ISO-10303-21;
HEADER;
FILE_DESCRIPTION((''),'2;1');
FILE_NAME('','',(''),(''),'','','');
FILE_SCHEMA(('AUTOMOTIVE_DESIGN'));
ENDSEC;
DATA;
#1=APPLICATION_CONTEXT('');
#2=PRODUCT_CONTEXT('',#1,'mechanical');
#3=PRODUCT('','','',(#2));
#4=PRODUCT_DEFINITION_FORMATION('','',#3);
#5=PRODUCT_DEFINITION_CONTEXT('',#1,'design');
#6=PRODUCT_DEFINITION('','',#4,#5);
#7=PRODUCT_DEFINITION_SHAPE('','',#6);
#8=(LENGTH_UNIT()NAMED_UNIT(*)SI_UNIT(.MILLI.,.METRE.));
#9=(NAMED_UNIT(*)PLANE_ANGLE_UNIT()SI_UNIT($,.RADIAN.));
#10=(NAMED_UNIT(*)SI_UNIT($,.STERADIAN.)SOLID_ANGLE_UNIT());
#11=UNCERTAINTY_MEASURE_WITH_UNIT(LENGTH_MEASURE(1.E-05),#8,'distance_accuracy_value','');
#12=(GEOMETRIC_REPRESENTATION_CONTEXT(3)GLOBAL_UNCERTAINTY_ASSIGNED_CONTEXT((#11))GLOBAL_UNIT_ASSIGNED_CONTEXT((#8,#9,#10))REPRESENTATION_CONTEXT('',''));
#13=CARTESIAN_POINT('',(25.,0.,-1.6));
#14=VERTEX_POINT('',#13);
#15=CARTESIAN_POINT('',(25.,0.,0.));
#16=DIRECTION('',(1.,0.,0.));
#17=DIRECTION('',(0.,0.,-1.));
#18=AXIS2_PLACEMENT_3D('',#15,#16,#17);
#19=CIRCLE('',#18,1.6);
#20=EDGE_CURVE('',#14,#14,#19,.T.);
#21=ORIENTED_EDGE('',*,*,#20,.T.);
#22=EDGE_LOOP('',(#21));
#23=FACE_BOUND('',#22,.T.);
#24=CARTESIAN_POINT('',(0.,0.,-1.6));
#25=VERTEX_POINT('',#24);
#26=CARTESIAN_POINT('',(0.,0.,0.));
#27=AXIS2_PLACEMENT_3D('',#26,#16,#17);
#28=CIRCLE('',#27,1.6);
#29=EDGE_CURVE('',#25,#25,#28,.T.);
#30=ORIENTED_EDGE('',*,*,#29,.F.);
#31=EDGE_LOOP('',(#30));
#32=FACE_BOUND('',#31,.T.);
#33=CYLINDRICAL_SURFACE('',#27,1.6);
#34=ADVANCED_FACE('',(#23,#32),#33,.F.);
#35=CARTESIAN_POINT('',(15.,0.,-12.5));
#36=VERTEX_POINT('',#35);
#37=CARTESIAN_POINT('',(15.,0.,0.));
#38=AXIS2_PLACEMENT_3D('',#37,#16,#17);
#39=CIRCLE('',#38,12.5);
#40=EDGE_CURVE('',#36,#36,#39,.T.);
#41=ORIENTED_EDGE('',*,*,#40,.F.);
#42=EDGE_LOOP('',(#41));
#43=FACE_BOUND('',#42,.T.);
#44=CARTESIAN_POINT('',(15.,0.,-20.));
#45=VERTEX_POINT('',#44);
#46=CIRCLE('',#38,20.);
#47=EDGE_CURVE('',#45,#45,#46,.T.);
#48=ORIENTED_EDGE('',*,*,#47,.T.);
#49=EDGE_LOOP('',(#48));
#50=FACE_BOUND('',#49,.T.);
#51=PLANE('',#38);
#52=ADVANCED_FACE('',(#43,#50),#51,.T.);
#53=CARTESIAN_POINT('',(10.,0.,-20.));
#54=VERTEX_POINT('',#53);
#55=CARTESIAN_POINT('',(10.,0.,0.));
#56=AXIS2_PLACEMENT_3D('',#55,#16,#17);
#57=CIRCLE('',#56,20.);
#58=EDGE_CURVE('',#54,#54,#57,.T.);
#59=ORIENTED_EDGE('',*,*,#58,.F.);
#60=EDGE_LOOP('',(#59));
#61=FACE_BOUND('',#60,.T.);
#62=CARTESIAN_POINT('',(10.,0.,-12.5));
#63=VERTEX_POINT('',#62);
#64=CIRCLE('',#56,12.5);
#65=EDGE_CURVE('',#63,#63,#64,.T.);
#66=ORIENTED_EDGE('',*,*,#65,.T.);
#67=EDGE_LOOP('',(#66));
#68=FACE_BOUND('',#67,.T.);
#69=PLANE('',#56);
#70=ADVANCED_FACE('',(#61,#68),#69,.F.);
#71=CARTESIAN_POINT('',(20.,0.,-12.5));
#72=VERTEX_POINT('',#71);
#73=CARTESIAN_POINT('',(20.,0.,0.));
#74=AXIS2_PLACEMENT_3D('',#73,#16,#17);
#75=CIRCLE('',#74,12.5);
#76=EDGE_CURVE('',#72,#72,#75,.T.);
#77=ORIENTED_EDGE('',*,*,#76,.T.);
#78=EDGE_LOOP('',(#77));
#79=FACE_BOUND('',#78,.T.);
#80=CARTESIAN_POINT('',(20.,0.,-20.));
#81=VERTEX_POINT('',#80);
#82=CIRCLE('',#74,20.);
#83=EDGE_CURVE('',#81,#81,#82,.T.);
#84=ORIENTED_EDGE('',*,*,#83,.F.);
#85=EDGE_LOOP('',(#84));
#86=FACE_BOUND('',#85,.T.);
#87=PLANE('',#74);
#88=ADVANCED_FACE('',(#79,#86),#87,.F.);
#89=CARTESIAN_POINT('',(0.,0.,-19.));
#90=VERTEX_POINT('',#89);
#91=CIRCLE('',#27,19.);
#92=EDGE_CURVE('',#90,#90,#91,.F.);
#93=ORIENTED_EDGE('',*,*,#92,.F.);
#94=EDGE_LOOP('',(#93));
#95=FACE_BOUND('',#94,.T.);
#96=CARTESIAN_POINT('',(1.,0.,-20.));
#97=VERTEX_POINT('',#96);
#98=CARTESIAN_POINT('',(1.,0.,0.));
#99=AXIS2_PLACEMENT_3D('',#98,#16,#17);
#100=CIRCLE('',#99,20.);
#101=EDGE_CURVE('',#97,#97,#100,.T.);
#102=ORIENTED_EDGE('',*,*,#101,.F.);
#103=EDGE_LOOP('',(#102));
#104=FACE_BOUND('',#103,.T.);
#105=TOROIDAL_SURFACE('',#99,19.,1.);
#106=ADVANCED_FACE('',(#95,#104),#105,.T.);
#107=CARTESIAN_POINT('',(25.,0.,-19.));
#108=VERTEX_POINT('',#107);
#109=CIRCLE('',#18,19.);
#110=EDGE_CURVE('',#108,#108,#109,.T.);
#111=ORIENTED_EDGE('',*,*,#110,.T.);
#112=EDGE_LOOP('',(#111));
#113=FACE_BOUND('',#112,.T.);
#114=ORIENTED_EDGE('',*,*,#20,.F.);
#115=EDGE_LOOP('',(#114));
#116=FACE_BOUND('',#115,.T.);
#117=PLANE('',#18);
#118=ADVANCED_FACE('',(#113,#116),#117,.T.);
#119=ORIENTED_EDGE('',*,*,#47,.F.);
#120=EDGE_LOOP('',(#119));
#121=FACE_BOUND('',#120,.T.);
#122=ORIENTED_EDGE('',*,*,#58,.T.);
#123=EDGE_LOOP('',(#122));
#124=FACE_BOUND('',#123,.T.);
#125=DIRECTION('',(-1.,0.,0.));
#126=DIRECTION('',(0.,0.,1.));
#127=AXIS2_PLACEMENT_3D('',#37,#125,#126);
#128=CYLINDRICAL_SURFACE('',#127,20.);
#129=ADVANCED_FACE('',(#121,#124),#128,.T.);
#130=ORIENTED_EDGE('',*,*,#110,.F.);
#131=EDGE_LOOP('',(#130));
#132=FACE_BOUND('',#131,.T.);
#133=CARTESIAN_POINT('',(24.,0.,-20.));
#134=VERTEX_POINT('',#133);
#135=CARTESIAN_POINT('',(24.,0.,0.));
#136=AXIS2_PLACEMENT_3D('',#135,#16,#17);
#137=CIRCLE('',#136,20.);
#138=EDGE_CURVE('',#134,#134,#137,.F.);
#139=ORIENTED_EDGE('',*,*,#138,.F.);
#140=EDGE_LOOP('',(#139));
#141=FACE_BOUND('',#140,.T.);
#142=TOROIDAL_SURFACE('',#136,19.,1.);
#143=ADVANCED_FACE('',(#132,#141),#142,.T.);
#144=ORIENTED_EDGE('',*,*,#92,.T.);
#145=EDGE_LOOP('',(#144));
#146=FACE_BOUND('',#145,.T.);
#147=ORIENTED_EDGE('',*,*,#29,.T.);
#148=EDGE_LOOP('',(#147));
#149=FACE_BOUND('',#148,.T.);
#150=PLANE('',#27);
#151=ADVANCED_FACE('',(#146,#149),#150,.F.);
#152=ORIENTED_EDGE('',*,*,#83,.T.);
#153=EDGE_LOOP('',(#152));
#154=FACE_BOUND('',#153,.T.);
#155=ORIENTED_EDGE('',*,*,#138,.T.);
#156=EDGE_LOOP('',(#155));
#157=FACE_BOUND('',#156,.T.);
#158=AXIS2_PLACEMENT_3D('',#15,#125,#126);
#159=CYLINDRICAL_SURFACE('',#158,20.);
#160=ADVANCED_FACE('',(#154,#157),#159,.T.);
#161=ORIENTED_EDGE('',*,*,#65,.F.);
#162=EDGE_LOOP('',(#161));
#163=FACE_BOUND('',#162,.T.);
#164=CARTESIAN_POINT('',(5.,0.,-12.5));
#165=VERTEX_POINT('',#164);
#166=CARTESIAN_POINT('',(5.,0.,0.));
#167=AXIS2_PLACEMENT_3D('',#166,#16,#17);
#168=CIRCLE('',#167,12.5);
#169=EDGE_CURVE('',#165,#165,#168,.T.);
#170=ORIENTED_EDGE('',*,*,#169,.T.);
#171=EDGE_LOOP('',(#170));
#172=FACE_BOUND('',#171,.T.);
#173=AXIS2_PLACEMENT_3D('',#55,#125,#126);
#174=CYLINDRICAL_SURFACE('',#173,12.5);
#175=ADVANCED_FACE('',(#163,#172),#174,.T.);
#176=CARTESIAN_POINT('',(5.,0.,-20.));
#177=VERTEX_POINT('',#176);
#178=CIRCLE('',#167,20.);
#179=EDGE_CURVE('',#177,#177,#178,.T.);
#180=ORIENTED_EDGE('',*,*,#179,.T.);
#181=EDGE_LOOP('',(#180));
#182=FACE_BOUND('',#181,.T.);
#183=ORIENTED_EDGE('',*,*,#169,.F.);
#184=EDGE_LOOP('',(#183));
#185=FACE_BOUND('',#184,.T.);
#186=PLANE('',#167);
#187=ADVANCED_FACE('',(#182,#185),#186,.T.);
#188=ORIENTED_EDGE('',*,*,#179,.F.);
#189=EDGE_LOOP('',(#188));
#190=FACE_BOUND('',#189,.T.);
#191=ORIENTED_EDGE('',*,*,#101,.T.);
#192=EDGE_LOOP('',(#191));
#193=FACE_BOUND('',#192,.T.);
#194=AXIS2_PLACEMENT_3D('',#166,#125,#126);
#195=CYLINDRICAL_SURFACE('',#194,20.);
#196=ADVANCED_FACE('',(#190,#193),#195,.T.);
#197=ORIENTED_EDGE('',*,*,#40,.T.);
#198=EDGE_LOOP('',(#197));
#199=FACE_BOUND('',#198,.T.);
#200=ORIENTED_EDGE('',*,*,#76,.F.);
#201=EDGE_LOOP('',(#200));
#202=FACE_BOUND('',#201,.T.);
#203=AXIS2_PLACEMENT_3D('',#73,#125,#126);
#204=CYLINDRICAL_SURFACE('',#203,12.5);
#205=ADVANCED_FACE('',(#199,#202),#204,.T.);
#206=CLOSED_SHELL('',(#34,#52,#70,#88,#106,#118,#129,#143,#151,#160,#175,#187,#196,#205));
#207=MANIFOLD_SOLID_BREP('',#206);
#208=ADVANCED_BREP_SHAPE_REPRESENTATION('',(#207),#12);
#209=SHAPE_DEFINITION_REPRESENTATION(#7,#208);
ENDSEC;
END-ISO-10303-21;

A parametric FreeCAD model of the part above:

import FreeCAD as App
import Part
import Sketcher
Q = App.Units.Quantity


def edges_at(feature, points):
    """Names of the edges that pass closest to the given points."""
    edges = feature.Shape.Edges
    near = lambda p: min(range(len(edges)), key=lambda i: edges[i].distToShape(Part.Vertex(*p))[0])
    return sorted({f"Edge{near(p) + 1}" for p in points})

doc = App.newDocument("Part")
body = doc.addObject("PartDesign::Body", "Body")

# Sketch on YZ plane
sketch1 = body.newObject("Sketcher::SketchObject", "Sketch")
sketch1.AttachmentSupport = (doc.getObject("YZ_Plane"), [""])
sketch1.MapMode = "FlatFace"
sketch1.addGeometry(Part.Circle(App.Vector(0, 0, 0), App.Vector(0, 0, 1), 20), False)
sketch1.addConstraint([
    Sketcher.Constraint("Coincident", 0, 3, -1, 1),
    Sketcher.Constraint("Diameter", 0, Q("40 mm")),
])
pad1 = body.newObject("PartDesign::Pad", "Pad")
pad1.Profile = sketch1
pad1.Length = 5

# Sketch on YZ plane
sketch2 = body.newObject("Sketcher::SketchObject", "Sketch001")
sketch2.AttachmentSupport = (doc.getObject("YZ_Plane"), [""])
sketch2.MapMode = "FlatFace"
sketch2.AttachmentOffset = App.Placement(App.Vector(0, 0, 5), App.Rotation())
sketch2.addGeometry(Part.Circle(App.Vector(0, 0, 0), App.Vector(0, 0, 1), 12.5), False)
sketch2.addConstraint([
    Sketcher.Constraint("Coincident", 0, 3, -1, 1),
    Sketcher.Constraint("Diameter", 0, Q("25 mm")),
])
pad2 = body.newObject("PartDesign::Pad", "Pad001")
pad2.Profile = sketch2
pad2.Length = 5

# Sketch on YZ plane
sketch3 = body.newObject("Sketcher::SketchObject", "Sketch002")
sketch3.AttachmentSupport = (doc.getObject("YZ_Plane"), [""])
sketch3.MapMode = "FlatFace"
sketch3.AttachmentOffset = App.Placement(App.Vector(0, 0, 10), App.Rotation())
sketch3.addGeometry(Part.Circle(App.Vector(0, 0, 0), App.Vector(0, 0, 1), 20), False)
sketch3.addConstraint([
    Sketcher.Constraint("Coincident", 0, 3, -1, 1),
    Sketcher.Constraint("Diameter", 0, Q("40 mm")),
])
pad3 = body.newObject("PartDesign::Pad", "Pad002")
pad3.Profile = sketch3
pad3.Length = 5

# Sketch on YZ plane
sketch4 = body.newObject("Sketcher::SketchObject", "Sketch003")
sketch4.AttachmentSupport = (doc.getObject("YZ_Plane"), [""])
sketch4.MapMode = "FlatFace"
sketch4.AttachmentOffset = App.Placement(App.Vector(0, 0, 15), App.Rotation())
sketch4.addGeometry(Part.Circle(App.Vector(0, 0, 0), App.Vector(0, 0, 1), 12.5), False)
sketch4.addConstraint([
    Sketcher.Constraint("Coincident", 0, 3, -1, 1),
    Sketcher.Constraint("Diameter", 0, Q("25 mm")),
])
pad4 = body.newObject("PartDesign::Pad", "Pad003")
pad4.Profile = sketch4
pad4.Length = 5

# Sketch on YZ plane
sketch5 = body.newObject("Sketcher::SketchObject", "Sketch004")
sketch5.AttachmentSupport = (doc.getObject("YZ_Plane"), [""])
sketch5.MapMode = "FlatFace"
sketch5.AttachmentOffset = App.Placement(App.Vector(0, 0, 20), App.Rotation())
sketch5.addGeometry(Part.Circle(App.Vector(0, 0, 0), App.Vector(0, 0, 1), 20), False)
sketch5.addConstraint([
    Sketcher.Constraint("Coincident", 0, 3, -1, 1),
    Sketcher.Constraint("Diameter", 0, Q("40 mm")),
])
pad5 = body.newObject("PartDesign::Pad", "Pad004")
pad5.Profile = sketch5
pad5.Length = 5
doc.recompute()

fillet = body.newObject("PartDesign::Fillet", "Fillet")
fillet.Base = (pad5, edges_at(pad5, [(25, 0, 20), (0, 0, 20)]))
fillet.Radius = 1

# Sketch on YZ plane
sketch6 = body.newObject("Sketcher::SketchObject", "Sketch005")
sketch6.AttachmentSupport = (doc.getObject("YZ_Plane"), [""])
sketch6.MapMode = "FlatFace"
sketch6.AttachmentOffset = App.Placement(App.Vector(0, 0, 25), App.Rotation())
sketch6.addGeometry(Part.Circle(App.Vector(0, 0, 0), App.Vector(0, 0, 1), 1.6), False)
sketch6.addConstraint([
    Sketcher.Constraint("Coincident", 0, 3, -1, 1),
    Sketcher.Constraint("Diameter", 0, Q("3.2 mm")),
])
pocket1 = body.newObject("PartDesign::Pocket", "Pocket")
pocket1.Profile = sketch6
pocket1.Length = 25

doc.recompute()
